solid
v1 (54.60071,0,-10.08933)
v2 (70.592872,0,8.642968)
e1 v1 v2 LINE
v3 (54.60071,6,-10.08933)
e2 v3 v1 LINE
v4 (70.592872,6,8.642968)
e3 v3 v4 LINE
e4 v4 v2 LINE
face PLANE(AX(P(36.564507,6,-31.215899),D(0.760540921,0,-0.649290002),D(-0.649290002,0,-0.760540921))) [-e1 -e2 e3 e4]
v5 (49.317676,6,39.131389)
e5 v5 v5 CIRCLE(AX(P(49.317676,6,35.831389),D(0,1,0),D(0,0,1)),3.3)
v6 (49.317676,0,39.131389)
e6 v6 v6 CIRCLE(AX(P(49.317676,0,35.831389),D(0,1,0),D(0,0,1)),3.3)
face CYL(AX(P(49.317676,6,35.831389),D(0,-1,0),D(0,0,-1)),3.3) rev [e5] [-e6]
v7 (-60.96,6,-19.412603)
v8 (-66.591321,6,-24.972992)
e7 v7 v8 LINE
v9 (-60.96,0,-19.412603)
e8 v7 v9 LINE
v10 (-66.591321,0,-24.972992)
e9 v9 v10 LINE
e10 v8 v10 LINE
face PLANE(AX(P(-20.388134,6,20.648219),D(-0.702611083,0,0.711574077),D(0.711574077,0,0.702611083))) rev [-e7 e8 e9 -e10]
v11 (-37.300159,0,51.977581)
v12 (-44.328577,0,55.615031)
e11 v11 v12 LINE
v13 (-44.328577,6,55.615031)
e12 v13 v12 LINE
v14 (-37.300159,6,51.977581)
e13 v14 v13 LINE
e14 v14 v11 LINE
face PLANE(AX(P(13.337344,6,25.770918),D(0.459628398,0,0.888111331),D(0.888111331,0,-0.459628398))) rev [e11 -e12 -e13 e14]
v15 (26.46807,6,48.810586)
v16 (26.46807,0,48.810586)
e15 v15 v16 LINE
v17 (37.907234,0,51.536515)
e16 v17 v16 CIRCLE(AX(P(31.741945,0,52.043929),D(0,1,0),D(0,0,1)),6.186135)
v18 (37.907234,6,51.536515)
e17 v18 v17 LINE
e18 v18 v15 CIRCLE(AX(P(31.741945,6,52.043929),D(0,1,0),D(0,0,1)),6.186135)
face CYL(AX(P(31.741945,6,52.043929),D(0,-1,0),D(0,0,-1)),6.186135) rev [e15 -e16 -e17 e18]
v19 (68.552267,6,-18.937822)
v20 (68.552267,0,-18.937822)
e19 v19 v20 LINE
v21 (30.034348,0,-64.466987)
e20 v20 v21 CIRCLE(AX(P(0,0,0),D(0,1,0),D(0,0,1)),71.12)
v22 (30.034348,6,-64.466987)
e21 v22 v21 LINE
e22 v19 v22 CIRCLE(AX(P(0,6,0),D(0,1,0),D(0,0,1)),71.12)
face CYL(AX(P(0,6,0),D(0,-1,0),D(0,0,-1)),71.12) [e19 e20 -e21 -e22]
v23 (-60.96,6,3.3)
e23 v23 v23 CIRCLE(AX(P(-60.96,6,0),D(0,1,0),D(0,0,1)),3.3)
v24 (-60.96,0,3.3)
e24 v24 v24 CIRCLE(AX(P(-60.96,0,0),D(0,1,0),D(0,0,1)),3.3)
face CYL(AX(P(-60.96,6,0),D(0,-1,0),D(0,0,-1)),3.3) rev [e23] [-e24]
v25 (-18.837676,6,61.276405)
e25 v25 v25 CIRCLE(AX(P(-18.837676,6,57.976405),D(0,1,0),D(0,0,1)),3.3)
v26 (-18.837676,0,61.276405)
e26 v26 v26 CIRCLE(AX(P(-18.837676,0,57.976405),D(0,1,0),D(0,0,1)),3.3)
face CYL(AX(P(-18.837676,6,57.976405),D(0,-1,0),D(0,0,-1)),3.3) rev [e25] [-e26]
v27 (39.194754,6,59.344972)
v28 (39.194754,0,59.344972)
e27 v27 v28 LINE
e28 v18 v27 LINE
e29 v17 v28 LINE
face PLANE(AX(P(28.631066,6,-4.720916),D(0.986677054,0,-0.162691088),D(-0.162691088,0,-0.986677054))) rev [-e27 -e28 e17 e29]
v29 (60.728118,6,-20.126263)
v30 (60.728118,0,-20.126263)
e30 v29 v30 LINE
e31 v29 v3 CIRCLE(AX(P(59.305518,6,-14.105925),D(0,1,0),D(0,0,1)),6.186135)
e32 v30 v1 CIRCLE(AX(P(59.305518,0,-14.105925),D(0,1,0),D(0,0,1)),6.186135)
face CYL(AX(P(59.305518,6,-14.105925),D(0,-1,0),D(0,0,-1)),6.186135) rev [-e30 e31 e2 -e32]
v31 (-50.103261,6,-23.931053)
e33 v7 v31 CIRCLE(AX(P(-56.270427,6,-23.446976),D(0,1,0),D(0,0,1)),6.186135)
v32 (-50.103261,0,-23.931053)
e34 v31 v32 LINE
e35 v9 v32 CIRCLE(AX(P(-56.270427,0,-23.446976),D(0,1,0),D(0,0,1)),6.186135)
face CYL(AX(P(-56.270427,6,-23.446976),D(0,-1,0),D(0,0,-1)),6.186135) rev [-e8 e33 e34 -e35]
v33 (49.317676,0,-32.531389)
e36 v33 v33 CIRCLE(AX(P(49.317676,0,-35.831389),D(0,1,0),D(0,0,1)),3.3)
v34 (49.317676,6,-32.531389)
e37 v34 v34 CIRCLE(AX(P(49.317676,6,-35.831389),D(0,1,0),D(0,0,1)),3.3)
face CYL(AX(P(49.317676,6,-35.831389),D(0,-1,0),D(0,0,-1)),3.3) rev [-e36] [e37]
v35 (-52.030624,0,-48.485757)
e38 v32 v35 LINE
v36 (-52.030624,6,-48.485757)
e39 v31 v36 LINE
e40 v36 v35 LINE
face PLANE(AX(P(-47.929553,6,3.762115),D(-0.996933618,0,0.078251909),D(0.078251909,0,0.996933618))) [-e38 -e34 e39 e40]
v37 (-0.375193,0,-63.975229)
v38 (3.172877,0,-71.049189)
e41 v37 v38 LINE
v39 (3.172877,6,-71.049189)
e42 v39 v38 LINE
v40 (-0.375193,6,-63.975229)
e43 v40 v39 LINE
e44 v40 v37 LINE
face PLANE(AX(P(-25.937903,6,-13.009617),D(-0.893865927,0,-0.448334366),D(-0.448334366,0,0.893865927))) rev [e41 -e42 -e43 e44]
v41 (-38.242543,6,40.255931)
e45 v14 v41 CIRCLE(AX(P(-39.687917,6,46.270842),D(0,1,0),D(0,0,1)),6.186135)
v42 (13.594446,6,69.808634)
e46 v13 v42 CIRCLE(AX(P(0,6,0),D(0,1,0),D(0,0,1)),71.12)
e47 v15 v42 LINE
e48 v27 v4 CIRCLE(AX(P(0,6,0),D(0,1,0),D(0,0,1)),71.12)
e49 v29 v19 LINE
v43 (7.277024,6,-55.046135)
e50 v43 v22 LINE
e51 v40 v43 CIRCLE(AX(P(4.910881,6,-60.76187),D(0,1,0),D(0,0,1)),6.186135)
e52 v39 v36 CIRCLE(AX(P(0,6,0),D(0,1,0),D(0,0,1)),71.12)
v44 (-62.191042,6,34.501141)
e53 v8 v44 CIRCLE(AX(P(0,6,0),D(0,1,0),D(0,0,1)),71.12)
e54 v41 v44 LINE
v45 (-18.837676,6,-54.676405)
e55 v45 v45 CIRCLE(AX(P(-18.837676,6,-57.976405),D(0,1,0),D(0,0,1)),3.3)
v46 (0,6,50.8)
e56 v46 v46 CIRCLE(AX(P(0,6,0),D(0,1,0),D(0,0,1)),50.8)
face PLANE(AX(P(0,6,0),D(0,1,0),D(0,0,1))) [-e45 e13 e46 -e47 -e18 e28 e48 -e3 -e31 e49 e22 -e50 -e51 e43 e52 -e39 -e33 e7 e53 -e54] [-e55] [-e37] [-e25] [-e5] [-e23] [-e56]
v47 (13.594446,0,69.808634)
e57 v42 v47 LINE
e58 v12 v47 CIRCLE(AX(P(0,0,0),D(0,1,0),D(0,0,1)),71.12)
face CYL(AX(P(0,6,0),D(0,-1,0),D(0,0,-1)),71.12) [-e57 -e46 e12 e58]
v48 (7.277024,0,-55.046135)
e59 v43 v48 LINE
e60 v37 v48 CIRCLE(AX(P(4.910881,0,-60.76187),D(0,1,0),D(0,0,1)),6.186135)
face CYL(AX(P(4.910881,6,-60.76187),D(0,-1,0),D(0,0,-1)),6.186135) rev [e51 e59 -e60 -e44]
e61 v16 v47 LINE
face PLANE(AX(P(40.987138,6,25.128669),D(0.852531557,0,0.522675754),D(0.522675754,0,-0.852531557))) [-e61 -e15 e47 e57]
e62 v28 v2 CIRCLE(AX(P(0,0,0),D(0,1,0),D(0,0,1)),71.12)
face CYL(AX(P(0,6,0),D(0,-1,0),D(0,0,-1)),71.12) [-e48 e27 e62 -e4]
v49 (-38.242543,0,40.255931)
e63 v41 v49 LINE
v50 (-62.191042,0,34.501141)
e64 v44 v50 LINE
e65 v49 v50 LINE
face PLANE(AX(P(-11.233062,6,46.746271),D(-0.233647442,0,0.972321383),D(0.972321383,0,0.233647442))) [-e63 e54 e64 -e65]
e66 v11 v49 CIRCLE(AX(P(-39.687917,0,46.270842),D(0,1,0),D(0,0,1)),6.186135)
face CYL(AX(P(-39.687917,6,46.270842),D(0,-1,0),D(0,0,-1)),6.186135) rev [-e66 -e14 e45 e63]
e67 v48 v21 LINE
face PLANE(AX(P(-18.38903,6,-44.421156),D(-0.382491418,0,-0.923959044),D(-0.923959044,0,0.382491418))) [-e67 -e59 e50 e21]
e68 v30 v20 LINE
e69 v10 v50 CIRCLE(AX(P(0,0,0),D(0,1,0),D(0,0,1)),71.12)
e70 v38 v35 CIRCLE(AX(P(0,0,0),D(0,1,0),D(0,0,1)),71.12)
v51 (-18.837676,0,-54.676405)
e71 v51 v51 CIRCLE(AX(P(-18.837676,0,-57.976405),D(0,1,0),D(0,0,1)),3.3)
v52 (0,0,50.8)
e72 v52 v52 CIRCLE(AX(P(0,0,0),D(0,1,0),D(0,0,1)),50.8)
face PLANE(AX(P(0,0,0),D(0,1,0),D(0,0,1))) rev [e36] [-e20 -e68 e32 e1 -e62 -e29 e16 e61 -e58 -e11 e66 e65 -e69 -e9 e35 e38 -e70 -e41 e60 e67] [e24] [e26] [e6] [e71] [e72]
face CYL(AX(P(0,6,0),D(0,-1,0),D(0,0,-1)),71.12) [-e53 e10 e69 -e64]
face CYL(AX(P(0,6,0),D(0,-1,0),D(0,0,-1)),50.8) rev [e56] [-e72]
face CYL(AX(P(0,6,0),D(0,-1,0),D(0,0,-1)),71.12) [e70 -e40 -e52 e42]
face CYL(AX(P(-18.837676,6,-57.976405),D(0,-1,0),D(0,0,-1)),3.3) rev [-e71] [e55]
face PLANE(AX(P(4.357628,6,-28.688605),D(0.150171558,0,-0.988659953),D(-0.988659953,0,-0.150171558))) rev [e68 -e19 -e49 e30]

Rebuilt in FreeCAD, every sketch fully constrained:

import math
import FreeCAD as App
import Part
import Sketcher

doc = App.newDocument("Part")
params = doc.addObject("Spreadsheet::Sheet", "Params")
for row, (alias, value) in enumerate([
    ("sketch1_diameter", "6.6 mm"),
    ("sketch1_diameter2", "101.6 mm"),
    ("sketch1_radius", "71.12 mm"),
    ("pad1_length", "6 mm"),
], start=1):
    params.set(f"A{row}", alias)
    params.set(f"B{row}", "=" + value)
    params.setAlias(f"B{row}", alias)

body = doc.addObject("PartDesign::Body", "Body")

# Sketch on XZ plane
sketch1 = doc.addObject("Sketcher::SketchObject", "Sketch")
body.addObject(sketch1)
sketch1.AttachmentSupport = (doc.XZ_Plane, [""])
sketch1.MapMode = "FlatFace"
sketch1.addGeometry([
    Part.ArcOfCircle(Part.Circle(App.Vector(-56.270427, -23.446976, 0), App.Vector(0, 0, 1), 6.186135), math.radians(0), math.radians(139.295061)),  # 0
    Part.LineSegment(App.Vector(-60.96, -19.412603, 0), App.Vector(-66.591321, -24.972992, 0)),  # 1
    Part.ArcOfCircle(Part.Circle(App.Vector(0, 0, 0), App.Vector(0, 0, 1), 71.12), math.radians(150.980212), math.radians(200.556986)),  # 2
    Part.LineSegment(App.Vector(-62.191042, 34.501141, 0), App.Vector(-38.242543, 40.255931, 0)),  # 3
    Part.ArcOfCircle(Part.Circle(App.Vector(-39.687917, 46.270842, 0), App.Vector(0, 0, 1), 6.186135), math.radians(-76.488092), math.radians(0)),  # 4
    Part.ArcOfCircle(Part.Circle(App.Vector(-39.687917, 46.270842, 0), App.Vector(0, 0, 1), 6.186135), math.radians(0), math.radians(67.295061)),  # 5
    Part.LineSegment(App.Vector(-37.300159, 51.977581, 0), App.Vector(-44.328577, 55.615031, 0)),  # 6
    Part.ArcOfCircle(Part.Circle(App.Vector(0, 0, 0), App.Vector(0, 0, 1), 71.12), math.radians(78.980212), math.radians(128.556986)),  # 7
    Part.LineSegment(App.Vector(13.594446, 69.808634, 0), App.Vector(26.46807, 48.810586, 0)),  # 8
    Part.ArcOfCircle(Part.Circle(App.Vector(31.741945, 52.043929, 0), App.Vector(0, 0, 1), 6.186135), math.radians(-148.488092), math.radians(-4.704939)),  # 9
    Part.LineSegment(App.Vector(37.907234, 51.536515, 0), App.Vector(39.194754, 59.344972, 0)),  # 10
    Part.ArcOfCircle(Part.Circle(App.Vector(0, 0, 0), App.Vector(0, 0, 1), 71.12), math.radians(6.980212), math.radians(56.556986)),  # 11
    Part.LineSegment(App.Vector(70.592872, 8.642968, 0), App.Vector(54.60071, -10.08933, 0)),  # 12
    Part.ArcOfCircle(Part.Circle(App.Vector(59.305518, -14.105925, 0), App.Vector(0, 0, 1), 6.186135), math.radians(139.511908), math.radians(283.295061)),  # 13
    Part.LineSegment(App.Vector(60.728118, -20.126263, 0), App.Vector(68.552267, -18.937822, 0)),  # 14
    Part.ArcOfCircle(Part.Circle(App.Vector(0, 0, 0), App.Vector(0, 0, 1), 71.12), math.radians(-65.019788), math.radians(-15.443014)),  # 15
    Part.LineSegment(App.Vector(30.034348, -64.466987, 0), App.Vector(7.277024, -55.046135, 0)),  # 16
    Part.ArcOfCircle(Part.Circle(App.Vector(4.910881, -60.76187, 0), App.Vector(0, 0, 1), 6.186135), math.radians(67.511908), math.radians(211.295061)),  # 17
    Part.LineSegment(App.Vector(-0.375193, -63.975229, 0), App.Vector(3.172877, -71.049189, 0)),  # 18
    Part.ArcOfCircle(Part.Circle(App.Vector(0, 0, 0), App.Vector(0, 0, 1), 71.12), math.radians(-137.019788), math.radians(-87.443014)),  # 19
    Part.LineSegment(App.Vector(-52.030624, -48.485757, 0), App.Vector(-50.103261, -23.931053, 0)),  # 20
    Part.ArcOfCircle(Part.Circle(App.Vector(-56.270427, -23.446976, 0), App.Vector(0, 0, 1), 6.186135), math.radians(-4.488092), math.radians(0)),  # 21
    Part.Circle(App.Vector(-18.837676, 57.976405, 0), App.Vector(0, 0, 1), 3.3),  # 22
    Part.Circle(App.Vector(49.317676, 35.831389, 0), App.Vector(0, 0, 1), 3.3),  # 23
    Part.Circle(App.Vector(-60.96, 0, 0), App.Vector(0, 0, 1), 3.3),  # 24
    Part.Circle(App.Vector(-18.837676, -57.976405, 0), App.Vector(0, 0, 1), 3.3),  # 25
    Part.Circle(App.Vector(0, 0, 0), App.Vector(0, 0, 1), 50.8),  # 26
    Part.Circle(App.Vector(49.317676, -35.831389, 0), App.Vector(0, 0, 1), 3.3),  # 27
], False)
sketch1.addConstraint([
    Sketcher.Constraint("Coincident", 0, 2, 1, 1),
    Sketcher.Constraint("Coincident", 1, 2, 2, 2),
    Sketcher.Constraint("Coincident", 2, 1, 3, 1),
    Sketcher.Constraint("Tangent", 3, 2, 4, 1),
    Sketcher.Constraint("Tangent", 4, 2, 5, 1),
    Sketcher.Constraint("Coincident", 5, 2, 6, 1),
    Sketcher.Constraint("Coincident", 6, 2, 7, 2),
    Sketcher.Constraint("Coincident", 7, 1, 8, 1),
    Sketcher.Constraint("Tangent", 8, 2, 9, 1),
    Sketcher.Constraint("Coincident", 9, 2, 10, 1),
    Sketcher.Constraint("Coincident", 10, 2, 11, 2),
    Sketcher.Constraint("Coincident", 11, 1, 12, 1),
    Sketcher.Constraint("Tangent", 12, 2, 13, 1),
    Sketcher.Constraint("Coincident", 13, 2, 14, 1),
    Sketcher.Constraint("Coincident", 14, 2, 15, 2),
    Sketcher.Constraint("Coincident", 15, 1, 16, 1),
    Sketcher.Constraint("Tangent", 16, 2, 17, 1),
    Sketcher.Constraint("Coincident", 17, 2, 18, 1),
    Sketcher.Constraint("Coincident", 18, 2, 19, 2),
    Sketcher.Constraint("Coincident", 19, 1, 20, 1),
    Sketcher.Constraint("Tangent", 20, 2, 21, 1),
    Sketcher.Constraint("Tangent", 21, 2, 0, 1),
    Sketcher.Constraint("Coincident", 2, 3, -1, 1),
    Sketcher.Constraint("Coincident", 7, 3, -1, 1),
    Sketcher.Constraint("Coincident", 11, 3, -1, 1),
    Sketcher.Constraint("Coincident", 15, 3, -1, 1),
    Sketcher.Constraint("Coincident", 19, 3, -1, 1),
    Sketcher.Constraint("Coincident", 26, 3, -1, 1),
    Sketcher.Constraint("Equal", 0, 4),
    Sketcher.Constraint("Equal", 4, 5),
    Sketcher.Constraint("Equal", 2, 7),
    Sketcher.Constraint("Equal", 5, 9),
    Sketcher.Constraint("Equal", 7, 11),
    Sketcher.Constraint("Equal", 9, 13),
    Sketcher.Constraint("Equal", 11, 15),
    Sketcher.Constraint("Equal", 13, 17),
    Sketcher.Constraint("Equal", 15, 19),
    Sketcher.Constraint("Equal", 17, 21),
    Sketcher.Constraint("Equal", 22, 23),
    Sketcher.Constraint("Equal", 23, 24),
    Sketcher.Constraint("Equal", 24, 25),
    Sketcher.Constraint("Equal", 25, 27),
    Sketcher.Constraint("Symmetric", 22, 3, 25, 3, -1),
    Sketcher.Constraint("Symmetric", 23, 3, 27, 3, -1),
    Sketcher.Constraint("PointOnObject", 24, 3, -1),
    Sketcher.Constraint("Horizontal", 5, 3, 4, 2),
    Sketcher.Constraint("Horizontal", 0, 3, 21, 2),
    Sketcher.Constraint("Vertical", 24, 3, 0, 2),
    Sketcher.Constraint("Equal", 1, 6),
    Sketcher.Constraint("Equal", 3, 8),
    Sketcher.Constraint("Equal", 6, 10),
    Sketcher.Constraint("Equal", 8, 12),
    Sketcher.Constraint("Equal", 10, 14),
    Sketcher.Constraint("Equal", 12, 16),
    Sketcher.Constraint("Equal", 14, 18),
    Sketcher.Constraint("Equal", 16, 20),
    Sketcher.Constraint("Diameter", 22, 6.6),
    Sketcher.Constraint("Diameter", 26, 101.6),
    Sketcher.Constraint("Radius", 2, 71.12),
    Sketcher.Constraint("DistanceX", 24, 3, -1, 1, 60.96),
    Sketcher.Constraint("Radius", 0, 6.186135),
    Sketcher.Constraint("DistanceY", 2, 1, 5, 3, 11.769701),
    Sketcher.Constraint("DistanceX", 2, 1, 3, 2, 23.948499),
    Sketcher.Constraint("DistanceY", 3, 2, 6, 2, 15.3591),
    Sketcher.Constraint("DistanceX", 7, 1, 9, 3, 18.147499),
    Sketcher.Constraint("DistanceX", 13, 3, 13, 2, 1.4226),
    Sketcher.Constraint("DistanceX", 25, 3, 16, 2, 26.1147),
    Sketcher.Constraint("DistanceY", -1, 1, 9, 3, 52.043929),
    Sketcher.Constraint("DistanceX", -1, 1, 13, 3, 59.305518),
    Sketcher.Constraint("DistanceX", -1, 1, 17, 3, 4.910881),
    Sketcher.Constraint("DistanceY", 17, 3, -1, 1, 60.76187),
    Sketcher.Constraint("DistanceY", -1, 1, 23, 3, 35.831389),
    Sketcher.Constraint("DistanceX", 1, 2, -1, 1, 66.591321),
    Sketcher.Constraint("DistanceX", 2, 1, -1, 1, 62.191042),
    Sketcher.Constraint("DistanceX", 5, 2, -1, 1, 37.300159),
    Sketcher.Constraint("DistanceY", -1, 1, 10, 2, 59.344972),
    Sketcher.Constraint("DistanceX", -1, 1, 11, 1, 70.592872),
    Sketcher.Constraint("DistanceY", 17, 2, -1, 1, 63.975229),
    Sketcher.Constraint("DistanceX", 20, 2, -1, 1, 50.103261),
    Sketcher.Constraint("DistanceX", 9, 3, 23, 3, 17.575731),
    Sketcher.Constraint("DistanceY", 25, 3, 0, 3, 34.52943),
])
sketch1.setExpression("Constraints[56]", "Params.sketch1_diameter")
sketch1.setExpression("Constraints[57]", "Params.sketch1_diameter2")
sketch1.setExpression("Constraints[58]", "Params.sketch1_radius")
pad1 = doc.addObject("PartDesign::Pad", "Pad")
body.addObject(pad1)
pad1.Profile = sketch1
pad1.setExpression("Length", "Params.pad1_length")
pad1.Reversed = True

doc.recompute()
